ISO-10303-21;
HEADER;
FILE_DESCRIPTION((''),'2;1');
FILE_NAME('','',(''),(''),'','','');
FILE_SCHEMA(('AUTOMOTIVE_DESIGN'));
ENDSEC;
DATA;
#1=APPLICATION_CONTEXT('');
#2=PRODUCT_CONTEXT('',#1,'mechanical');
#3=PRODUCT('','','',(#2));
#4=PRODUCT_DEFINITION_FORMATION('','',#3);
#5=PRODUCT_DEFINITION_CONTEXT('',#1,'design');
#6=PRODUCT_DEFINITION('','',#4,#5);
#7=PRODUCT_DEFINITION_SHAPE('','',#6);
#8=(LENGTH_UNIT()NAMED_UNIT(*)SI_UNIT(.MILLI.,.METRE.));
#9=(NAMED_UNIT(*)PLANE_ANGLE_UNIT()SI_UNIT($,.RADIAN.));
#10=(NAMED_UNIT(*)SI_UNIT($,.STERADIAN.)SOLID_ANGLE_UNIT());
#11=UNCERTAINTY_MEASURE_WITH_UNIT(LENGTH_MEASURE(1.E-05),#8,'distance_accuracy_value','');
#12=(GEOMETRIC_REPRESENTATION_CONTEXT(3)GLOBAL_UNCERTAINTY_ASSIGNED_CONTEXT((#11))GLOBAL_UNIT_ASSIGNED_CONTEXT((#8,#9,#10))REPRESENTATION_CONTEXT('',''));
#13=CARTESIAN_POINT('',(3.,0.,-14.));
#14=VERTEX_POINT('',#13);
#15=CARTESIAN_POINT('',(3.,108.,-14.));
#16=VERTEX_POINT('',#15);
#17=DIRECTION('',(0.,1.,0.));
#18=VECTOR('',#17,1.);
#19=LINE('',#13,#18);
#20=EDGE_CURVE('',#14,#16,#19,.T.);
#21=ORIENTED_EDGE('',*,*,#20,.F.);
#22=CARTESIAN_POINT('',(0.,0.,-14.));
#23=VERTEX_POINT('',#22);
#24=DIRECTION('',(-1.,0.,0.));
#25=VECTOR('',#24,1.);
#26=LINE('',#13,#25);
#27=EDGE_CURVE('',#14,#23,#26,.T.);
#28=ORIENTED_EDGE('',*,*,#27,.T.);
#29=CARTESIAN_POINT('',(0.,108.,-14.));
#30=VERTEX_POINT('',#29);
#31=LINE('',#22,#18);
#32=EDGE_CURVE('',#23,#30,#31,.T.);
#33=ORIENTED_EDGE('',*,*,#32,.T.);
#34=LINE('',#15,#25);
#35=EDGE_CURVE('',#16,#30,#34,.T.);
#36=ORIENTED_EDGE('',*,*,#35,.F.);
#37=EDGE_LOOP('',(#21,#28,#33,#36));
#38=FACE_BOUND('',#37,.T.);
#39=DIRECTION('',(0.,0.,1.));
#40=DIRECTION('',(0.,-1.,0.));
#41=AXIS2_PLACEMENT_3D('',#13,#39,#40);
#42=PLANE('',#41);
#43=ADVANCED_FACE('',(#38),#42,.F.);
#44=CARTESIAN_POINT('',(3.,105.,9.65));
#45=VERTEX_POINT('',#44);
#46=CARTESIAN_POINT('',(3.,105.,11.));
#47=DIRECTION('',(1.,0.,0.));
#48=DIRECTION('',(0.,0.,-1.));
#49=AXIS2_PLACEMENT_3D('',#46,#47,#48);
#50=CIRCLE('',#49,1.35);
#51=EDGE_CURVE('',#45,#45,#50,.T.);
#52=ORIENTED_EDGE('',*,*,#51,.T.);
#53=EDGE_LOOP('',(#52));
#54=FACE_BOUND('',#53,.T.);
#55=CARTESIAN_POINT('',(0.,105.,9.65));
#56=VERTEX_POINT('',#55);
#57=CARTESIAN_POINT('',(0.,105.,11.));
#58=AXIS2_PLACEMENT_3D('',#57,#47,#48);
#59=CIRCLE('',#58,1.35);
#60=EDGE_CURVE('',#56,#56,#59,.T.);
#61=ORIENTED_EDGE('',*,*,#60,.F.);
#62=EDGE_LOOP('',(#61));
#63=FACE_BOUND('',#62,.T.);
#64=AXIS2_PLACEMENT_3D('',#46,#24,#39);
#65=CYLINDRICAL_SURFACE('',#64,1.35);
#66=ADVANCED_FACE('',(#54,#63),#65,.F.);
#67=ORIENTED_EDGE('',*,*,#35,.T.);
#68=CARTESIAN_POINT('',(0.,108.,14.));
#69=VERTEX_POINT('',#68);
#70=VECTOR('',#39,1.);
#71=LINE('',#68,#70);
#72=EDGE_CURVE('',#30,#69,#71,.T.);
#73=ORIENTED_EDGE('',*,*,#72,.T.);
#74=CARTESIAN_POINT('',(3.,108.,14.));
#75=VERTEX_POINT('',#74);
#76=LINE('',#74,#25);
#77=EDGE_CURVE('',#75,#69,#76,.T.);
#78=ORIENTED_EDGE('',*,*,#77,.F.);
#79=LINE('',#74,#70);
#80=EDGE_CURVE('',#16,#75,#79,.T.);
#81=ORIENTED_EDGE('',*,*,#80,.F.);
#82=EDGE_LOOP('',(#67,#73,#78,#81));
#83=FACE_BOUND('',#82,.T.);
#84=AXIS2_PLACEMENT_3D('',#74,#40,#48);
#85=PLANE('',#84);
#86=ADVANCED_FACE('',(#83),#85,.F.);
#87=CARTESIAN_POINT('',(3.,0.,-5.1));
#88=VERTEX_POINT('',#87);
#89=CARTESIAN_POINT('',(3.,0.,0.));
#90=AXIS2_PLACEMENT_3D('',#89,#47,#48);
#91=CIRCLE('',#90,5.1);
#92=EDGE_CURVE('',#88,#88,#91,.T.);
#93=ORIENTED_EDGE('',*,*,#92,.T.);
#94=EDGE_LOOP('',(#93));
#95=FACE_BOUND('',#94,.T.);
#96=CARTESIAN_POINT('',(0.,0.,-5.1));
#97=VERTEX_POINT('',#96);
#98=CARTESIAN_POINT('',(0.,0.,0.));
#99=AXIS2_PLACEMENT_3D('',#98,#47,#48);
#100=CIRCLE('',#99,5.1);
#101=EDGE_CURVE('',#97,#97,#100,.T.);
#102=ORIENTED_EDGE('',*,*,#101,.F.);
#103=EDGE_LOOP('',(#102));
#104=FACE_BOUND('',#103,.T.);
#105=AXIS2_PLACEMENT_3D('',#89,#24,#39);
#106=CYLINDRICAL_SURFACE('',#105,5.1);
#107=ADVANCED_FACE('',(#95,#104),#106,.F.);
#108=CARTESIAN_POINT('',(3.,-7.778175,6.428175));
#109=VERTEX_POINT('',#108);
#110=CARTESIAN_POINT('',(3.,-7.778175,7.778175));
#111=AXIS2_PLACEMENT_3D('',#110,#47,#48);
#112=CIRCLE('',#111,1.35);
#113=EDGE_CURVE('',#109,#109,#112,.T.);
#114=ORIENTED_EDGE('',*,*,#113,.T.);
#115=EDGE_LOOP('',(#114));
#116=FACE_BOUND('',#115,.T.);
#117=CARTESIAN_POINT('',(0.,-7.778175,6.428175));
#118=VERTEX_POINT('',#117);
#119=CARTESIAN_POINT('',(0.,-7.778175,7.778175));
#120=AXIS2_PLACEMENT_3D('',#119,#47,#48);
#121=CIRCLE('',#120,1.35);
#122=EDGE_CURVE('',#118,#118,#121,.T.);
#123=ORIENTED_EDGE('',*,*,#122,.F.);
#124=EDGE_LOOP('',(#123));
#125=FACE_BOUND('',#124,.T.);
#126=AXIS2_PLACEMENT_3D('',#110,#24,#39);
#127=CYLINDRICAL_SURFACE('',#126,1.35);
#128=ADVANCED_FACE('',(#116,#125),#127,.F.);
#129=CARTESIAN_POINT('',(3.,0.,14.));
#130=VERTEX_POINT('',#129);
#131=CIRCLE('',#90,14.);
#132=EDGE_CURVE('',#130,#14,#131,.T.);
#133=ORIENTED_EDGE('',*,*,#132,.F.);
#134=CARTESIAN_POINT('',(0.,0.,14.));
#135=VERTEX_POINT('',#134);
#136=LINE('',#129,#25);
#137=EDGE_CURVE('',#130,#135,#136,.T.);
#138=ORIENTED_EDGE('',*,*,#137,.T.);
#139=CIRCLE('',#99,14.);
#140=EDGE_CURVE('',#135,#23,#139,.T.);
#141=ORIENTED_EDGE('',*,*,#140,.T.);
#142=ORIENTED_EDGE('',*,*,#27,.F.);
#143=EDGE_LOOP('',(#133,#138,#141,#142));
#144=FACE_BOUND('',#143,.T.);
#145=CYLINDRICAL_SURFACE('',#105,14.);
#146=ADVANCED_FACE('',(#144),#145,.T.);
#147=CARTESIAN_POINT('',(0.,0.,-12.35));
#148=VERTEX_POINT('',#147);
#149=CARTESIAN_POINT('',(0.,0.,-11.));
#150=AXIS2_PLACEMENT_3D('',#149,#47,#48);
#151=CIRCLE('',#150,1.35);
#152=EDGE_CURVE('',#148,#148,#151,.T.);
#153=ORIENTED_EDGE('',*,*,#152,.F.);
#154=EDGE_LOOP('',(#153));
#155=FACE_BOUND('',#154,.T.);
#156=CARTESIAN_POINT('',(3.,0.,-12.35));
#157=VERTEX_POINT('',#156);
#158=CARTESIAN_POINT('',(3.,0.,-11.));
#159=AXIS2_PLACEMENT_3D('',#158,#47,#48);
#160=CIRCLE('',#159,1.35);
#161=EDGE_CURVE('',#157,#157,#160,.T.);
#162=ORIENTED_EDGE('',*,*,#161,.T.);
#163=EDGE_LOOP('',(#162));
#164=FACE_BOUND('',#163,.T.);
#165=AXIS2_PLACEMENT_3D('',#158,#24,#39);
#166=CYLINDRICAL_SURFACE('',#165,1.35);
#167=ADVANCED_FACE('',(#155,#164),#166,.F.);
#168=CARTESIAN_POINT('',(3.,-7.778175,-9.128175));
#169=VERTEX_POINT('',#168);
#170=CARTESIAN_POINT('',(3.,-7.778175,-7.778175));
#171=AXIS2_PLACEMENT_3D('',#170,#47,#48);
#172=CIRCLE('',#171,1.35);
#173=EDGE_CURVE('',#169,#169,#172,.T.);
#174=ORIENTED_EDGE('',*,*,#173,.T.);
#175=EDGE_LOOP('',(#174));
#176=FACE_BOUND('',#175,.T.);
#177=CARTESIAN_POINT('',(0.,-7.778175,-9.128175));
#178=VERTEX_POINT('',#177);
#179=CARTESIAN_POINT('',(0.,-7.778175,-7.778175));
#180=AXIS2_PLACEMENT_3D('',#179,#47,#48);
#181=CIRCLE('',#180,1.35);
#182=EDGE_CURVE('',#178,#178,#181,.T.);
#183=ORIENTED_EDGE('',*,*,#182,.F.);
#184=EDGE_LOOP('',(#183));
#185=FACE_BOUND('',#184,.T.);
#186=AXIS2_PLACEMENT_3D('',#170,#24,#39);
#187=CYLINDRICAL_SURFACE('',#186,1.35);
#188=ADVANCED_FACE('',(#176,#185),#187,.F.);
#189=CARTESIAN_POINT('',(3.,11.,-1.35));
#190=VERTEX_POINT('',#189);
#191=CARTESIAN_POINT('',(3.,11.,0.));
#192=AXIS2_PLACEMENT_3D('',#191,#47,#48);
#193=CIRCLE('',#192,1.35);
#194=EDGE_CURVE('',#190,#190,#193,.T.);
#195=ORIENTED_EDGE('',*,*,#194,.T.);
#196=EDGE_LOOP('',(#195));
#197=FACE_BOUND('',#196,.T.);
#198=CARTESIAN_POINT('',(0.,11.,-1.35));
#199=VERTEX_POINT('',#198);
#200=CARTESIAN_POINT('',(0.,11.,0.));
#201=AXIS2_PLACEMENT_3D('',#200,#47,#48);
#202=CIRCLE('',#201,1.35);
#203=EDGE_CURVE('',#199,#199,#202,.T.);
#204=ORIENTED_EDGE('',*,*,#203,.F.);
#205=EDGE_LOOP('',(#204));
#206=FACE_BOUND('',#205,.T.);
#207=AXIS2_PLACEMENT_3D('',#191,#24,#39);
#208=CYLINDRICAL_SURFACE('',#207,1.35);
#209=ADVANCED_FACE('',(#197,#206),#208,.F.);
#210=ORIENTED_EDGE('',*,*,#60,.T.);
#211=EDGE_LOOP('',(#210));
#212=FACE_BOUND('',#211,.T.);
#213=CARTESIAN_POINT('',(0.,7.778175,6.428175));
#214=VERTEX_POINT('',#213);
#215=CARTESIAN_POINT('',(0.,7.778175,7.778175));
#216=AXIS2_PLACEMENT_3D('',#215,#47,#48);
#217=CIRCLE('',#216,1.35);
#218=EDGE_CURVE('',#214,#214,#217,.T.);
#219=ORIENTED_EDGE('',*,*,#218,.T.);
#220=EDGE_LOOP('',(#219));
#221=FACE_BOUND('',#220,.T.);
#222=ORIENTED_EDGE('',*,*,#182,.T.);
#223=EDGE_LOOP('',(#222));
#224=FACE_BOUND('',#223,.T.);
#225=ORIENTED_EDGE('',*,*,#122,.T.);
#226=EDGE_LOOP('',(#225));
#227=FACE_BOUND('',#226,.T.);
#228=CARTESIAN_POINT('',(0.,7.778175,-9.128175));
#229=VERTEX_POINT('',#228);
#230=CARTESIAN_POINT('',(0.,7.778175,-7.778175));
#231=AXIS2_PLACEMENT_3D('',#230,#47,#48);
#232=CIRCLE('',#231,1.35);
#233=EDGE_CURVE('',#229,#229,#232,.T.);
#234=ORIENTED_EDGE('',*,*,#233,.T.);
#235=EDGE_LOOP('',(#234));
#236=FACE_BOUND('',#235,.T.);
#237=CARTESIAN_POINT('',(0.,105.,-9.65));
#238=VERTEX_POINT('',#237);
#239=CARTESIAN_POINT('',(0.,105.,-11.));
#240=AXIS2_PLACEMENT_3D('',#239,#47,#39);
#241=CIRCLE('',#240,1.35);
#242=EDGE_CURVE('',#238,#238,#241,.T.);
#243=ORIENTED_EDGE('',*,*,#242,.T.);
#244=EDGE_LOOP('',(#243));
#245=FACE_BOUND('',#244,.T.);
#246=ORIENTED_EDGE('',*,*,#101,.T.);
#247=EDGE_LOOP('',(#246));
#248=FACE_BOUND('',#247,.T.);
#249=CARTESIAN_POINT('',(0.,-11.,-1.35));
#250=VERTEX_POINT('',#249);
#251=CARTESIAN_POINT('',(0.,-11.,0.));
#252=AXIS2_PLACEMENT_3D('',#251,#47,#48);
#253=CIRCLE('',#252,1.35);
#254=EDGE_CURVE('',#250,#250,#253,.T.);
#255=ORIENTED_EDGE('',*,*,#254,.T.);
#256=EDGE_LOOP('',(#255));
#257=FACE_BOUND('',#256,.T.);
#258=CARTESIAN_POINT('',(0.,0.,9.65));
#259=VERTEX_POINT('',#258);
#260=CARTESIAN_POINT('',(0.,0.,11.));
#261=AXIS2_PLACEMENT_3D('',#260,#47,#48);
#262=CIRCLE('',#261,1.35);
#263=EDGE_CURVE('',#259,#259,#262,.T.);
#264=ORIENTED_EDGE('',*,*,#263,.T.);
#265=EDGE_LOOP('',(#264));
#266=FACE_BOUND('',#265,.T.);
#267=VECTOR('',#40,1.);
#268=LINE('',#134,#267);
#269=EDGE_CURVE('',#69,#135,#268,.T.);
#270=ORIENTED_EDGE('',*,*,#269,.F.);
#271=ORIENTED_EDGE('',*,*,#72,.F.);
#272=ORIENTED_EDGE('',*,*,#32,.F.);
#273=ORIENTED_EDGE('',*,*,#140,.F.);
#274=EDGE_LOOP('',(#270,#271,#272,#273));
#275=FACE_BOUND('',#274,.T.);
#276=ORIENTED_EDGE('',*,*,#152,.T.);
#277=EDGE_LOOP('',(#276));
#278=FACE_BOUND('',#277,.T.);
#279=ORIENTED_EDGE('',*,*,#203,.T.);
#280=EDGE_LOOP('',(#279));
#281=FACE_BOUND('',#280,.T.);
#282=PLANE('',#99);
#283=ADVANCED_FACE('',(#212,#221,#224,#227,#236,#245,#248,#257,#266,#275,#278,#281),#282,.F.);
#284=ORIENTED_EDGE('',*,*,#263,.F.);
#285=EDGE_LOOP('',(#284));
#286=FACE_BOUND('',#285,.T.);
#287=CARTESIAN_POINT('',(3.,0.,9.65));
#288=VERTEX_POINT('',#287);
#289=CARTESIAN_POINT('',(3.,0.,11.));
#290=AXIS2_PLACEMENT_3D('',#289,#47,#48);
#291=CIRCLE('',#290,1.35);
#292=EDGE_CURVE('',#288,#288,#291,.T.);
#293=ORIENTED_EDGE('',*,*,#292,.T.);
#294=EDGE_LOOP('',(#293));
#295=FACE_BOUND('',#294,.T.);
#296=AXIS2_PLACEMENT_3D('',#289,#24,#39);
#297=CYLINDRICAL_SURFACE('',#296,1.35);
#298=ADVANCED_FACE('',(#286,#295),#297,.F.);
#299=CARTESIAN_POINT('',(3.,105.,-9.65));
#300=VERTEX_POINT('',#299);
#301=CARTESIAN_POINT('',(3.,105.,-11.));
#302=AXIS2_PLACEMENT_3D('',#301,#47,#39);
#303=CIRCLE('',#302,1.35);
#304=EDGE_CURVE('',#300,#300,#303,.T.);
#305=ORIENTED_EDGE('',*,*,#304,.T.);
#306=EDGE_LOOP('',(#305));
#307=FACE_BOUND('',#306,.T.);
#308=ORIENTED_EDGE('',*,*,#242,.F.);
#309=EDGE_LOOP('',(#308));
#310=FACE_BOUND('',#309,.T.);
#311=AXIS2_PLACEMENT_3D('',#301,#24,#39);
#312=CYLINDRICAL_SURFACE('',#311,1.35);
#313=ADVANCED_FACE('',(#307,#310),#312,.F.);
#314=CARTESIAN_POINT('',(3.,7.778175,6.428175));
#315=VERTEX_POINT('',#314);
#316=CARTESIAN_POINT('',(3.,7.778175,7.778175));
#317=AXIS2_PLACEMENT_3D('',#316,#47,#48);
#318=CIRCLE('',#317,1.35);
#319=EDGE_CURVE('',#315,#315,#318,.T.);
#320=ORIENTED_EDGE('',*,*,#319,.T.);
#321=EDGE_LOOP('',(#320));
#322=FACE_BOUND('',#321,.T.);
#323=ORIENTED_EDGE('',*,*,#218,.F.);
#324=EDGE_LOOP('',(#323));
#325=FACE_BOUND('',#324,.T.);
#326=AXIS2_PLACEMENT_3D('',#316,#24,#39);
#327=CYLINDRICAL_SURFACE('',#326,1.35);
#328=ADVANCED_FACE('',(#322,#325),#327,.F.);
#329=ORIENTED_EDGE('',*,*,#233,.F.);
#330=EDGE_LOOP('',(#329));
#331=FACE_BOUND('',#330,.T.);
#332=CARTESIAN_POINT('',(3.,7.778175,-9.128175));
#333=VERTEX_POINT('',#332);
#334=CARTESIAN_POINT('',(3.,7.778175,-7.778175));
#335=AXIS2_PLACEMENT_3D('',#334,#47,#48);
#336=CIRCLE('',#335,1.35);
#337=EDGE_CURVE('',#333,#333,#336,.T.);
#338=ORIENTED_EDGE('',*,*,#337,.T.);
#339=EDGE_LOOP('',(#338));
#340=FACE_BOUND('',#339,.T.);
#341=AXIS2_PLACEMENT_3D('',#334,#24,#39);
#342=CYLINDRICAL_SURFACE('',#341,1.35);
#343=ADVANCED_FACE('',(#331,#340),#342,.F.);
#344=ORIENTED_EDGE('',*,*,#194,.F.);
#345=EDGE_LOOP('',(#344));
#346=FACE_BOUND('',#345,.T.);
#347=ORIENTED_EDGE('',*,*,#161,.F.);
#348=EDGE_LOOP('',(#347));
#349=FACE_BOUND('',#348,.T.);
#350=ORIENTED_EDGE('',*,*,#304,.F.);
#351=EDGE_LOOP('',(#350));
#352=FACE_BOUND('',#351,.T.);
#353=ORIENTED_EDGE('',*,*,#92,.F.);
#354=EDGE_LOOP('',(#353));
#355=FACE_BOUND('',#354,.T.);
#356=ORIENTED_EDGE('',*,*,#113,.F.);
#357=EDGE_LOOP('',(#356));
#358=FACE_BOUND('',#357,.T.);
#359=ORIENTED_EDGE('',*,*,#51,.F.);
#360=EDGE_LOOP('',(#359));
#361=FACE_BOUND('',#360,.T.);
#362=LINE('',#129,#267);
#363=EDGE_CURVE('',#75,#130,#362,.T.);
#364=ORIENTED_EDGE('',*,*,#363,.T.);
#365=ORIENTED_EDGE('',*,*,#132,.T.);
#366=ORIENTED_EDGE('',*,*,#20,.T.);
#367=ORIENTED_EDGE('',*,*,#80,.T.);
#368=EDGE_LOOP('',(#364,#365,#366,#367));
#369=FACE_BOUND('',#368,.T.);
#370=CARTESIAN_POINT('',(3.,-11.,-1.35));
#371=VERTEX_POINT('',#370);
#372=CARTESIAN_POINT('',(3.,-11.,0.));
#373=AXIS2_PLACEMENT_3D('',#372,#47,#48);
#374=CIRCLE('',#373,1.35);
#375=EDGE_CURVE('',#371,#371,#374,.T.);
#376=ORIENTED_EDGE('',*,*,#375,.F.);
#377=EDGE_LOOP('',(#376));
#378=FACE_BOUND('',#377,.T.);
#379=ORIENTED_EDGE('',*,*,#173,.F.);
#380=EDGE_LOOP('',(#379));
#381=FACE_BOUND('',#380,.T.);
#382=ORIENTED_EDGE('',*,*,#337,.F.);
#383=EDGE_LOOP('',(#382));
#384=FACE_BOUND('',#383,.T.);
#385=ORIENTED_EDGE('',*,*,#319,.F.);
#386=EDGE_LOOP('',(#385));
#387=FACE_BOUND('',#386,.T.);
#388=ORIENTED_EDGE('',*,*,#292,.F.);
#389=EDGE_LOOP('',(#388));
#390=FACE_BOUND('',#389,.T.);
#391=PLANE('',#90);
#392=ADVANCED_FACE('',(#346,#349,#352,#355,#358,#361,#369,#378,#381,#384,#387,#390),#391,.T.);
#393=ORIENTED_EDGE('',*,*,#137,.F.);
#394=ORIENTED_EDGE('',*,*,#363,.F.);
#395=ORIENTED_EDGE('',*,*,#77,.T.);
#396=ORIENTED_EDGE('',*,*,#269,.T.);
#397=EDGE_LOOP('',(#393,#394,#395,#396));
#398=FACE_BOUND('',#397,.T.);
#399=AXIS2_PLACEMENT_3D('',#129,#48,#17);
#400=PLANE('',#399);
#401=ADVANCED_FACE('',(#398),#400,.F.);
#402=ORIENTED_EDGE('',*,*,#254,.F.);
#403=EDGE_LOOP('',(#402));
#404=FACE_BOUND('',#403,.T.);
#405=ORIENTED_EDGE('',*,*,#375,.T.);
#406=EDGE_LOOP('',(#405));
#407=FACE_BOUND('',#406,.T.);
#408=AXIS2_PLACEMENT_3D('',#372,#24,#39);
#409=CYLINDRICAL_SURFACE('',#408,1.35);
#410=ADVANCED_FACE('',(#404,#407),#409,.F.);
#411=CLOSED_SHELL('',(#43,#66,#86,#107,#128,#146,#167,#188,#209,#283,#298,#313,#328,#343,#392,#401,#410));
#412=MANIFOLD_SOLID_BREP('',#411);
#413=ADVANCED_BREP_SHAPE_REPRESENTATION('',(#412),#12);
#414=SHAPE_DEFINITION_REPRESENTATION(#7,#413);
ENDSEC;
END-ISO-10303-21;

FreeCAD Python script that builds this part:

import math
import FreeCAD as App
import Part
import Sketcher

V = App.Vector
Q = App.Units.Quantity

doc = App.newDocument("Part")
params = doc.addObject("Spreadsheet::Sheet", "Params")
for row, (alias, value) in enumerate([
    ("sketch1_radius", "14 mm"),
    ("sketch1_diameter", "2.7 mm"),
    ("sketch1_diameter2", "10.2 mm"),
    ("sketch1_width", "108 mm"),
    ("pad1_length", "3 mm"),
], start=1):
    params.set(f"A{row}", alias)
    params.set(f"B{row}", "=" + value)
    params.setAlias(f"B{row}", alias)

body = doc.addObject("PartDesign::Body", "Body")

# Sketch on YZ plane
sketch1 = body.newObject("Sketcher::SketchObject", "Sketch")
sketch1.AttachmentSupport = (doc.getObject("YZ_Plane"), [""])
sketch1.MapMode = "FlatFace"
sketch1.addGeometry([
    Part.LineSegment(V(108, 14, 0), V(0, 14, 0)),  # 0
    Part.ArcOfCircle(Part.Circle(V(0, 0, 0), V(0, 0, 1), 14), math.radians(90), math.radians(270)),  # 1
    Part.LineSegment(V(0, -14, 0), V(108, -14, 0)),  # 2
    Part.LineSegment(V(108, -14, 0), V(108, 14, 0)),  # 3
    Part.Circle(V(0, -11, 0), V(0, 0, 1), 1.4),  # 4
    Part.Circle(V(-7.8, -7.8, 0), V(0, 0, 1), 1.4),  # 5
    Part.Circle(V(7.8, -7.8, 0), V(0, 0, 1), 1.4),  # 6
    Part.Circle(V(-11, 0, 0), V(0, 0, 1), 1.4),  # 7
    Part.Circle(V(0, 0, 0), V(0, 0, 1), 5.1),  # 8
    Part.Circle(V(11, 0, 0), V(0, 0, 1), 1.4),  # 9
    Part.Circle(V(-7.8, 7.8, 0), V(0, 0, 1), 1.4),  # 10
    Part.Circle(V(0, 11, 0), V(0, 0, 1), 1.4),  # 11
    Part.Circle(V(7.8, 7.8, 0), V(0, 0, 1), 1.4),  # 12
    Part.Circle(V(105, -11, 0), V(0, 0, 1), 1.4),  # 13
    Part.Circle(V(105, 11, 0), V(0, 0, 1), 1.4),  # 14
], False)
sketch1.addConstraint([
    Sketcher.Constraint("Tangent", 0, 2, 1, 1),
    Sketcher.Constraint("Tangent", 1, 2, 2, 1),
    Sketcher.Constraint("Coincident", 2, 2, 3, 1),
    Sketcher.Constraint("Coincident", 3, 2, 0, 1),
    Sketcher.Constraint("Horizontal", 0),
    Sketcher.Constraint("Horizontal", 2),
    Sketcher.Constraint("Vertical", 3),
    Sketcher.Constraint("Coincident", 1, 3, -1, 1),
    Sketcher.Constraint("Coincident", 8, 3, -1, 1),
    Sketcher.Constraint("Equal", 4, 5),
    Sketcher.Constraint("Equal", 5, 6),
    Sketcher.Constraint("Equal", 6, 7),
    Sketcher.Constraint("Equal", 7, 9),
    Sketcher.Constraint("Equal", 9, 10),
    Sketcher.Constraint("Equal", 10, 11),
    Sketcher.Constraint("Equal", 11, 12),
    Sketcher.Constraint("Equal", 12, 13),
    Sketcher.Constraint("Equal", 13, 14),
    Sketcher.Constraint("Symmetric", 7, 3, 9, 3, -1, 1),
    Sketcher.Constraint("Symmetric", 6, 3, 10, 3, -1, 1),
    Sketcher.Constraint("Symmetric", 4, 3, 11, 3, -1, 1),
    Sketcher.Constraint("Symmetric", 5, 3, 12, 3, -1, 1),
    Sketcher.Constraint("Symmetric", 5, 3, 6, 3, -2),
    Sketcher.Constraint("Symmetric", 13, 3, 14, 3, -1),
    Sketcher.Constraint("PointOnObject", 4, 3, -2),
    Sketcher.Constraint("PointOnObject", 7, 3, -1),
    Sketcher.Constraint("Horizontal", 4, 3, 13, 3),
    Sketcher.Constraint("Radius", 1, Q("14 mm")),
    Sketcher.Constraint("Diameter", 4, Q("2.7 mm")),
    Sketcher.Constraint("Diameter", 8, Q("10.2 mm")),
    Sketcher.Constraint("DistanceX", 0, 2, 0, 1, Q("108 mm")),
    Sketcher.Constraint("DistanceY", 4, 3, -1, 1, Q("11 mm")),
    Sketcher.Constraint("DistanceX", 7, 3, -1, 1, Q("11 mm")),
    Sketcher.Constraint("DistanceX", -1, 1, 13, 3, Q("105 mm")),
    Sketcher.Constraint("DistanceX", 5, 3, 6, 3, Q("15.556349 mm")),
    Sketcher.Constraint("DistanceY", 5, 3, 10, 3, Q("15.556349 mm")),
])
sketch1.setExpression("Constraints[27]", "Params.sketch1_radius")
sketch1.setExpression("Constraints[28]", "Params.sketch1_diameter")
sketch1.setExpression("Constraints[29]", "Params.sketch1_diameter2")
sketch1.setExpression("Constraints[30]", "Params.sketch1_width")
pad1 = body.newObject("PartDesign::Pad", "Pad")
pad1.Profile = sketch1
pad1.setExpression("Length", "Params.pad1_length")

doc.recompute()
